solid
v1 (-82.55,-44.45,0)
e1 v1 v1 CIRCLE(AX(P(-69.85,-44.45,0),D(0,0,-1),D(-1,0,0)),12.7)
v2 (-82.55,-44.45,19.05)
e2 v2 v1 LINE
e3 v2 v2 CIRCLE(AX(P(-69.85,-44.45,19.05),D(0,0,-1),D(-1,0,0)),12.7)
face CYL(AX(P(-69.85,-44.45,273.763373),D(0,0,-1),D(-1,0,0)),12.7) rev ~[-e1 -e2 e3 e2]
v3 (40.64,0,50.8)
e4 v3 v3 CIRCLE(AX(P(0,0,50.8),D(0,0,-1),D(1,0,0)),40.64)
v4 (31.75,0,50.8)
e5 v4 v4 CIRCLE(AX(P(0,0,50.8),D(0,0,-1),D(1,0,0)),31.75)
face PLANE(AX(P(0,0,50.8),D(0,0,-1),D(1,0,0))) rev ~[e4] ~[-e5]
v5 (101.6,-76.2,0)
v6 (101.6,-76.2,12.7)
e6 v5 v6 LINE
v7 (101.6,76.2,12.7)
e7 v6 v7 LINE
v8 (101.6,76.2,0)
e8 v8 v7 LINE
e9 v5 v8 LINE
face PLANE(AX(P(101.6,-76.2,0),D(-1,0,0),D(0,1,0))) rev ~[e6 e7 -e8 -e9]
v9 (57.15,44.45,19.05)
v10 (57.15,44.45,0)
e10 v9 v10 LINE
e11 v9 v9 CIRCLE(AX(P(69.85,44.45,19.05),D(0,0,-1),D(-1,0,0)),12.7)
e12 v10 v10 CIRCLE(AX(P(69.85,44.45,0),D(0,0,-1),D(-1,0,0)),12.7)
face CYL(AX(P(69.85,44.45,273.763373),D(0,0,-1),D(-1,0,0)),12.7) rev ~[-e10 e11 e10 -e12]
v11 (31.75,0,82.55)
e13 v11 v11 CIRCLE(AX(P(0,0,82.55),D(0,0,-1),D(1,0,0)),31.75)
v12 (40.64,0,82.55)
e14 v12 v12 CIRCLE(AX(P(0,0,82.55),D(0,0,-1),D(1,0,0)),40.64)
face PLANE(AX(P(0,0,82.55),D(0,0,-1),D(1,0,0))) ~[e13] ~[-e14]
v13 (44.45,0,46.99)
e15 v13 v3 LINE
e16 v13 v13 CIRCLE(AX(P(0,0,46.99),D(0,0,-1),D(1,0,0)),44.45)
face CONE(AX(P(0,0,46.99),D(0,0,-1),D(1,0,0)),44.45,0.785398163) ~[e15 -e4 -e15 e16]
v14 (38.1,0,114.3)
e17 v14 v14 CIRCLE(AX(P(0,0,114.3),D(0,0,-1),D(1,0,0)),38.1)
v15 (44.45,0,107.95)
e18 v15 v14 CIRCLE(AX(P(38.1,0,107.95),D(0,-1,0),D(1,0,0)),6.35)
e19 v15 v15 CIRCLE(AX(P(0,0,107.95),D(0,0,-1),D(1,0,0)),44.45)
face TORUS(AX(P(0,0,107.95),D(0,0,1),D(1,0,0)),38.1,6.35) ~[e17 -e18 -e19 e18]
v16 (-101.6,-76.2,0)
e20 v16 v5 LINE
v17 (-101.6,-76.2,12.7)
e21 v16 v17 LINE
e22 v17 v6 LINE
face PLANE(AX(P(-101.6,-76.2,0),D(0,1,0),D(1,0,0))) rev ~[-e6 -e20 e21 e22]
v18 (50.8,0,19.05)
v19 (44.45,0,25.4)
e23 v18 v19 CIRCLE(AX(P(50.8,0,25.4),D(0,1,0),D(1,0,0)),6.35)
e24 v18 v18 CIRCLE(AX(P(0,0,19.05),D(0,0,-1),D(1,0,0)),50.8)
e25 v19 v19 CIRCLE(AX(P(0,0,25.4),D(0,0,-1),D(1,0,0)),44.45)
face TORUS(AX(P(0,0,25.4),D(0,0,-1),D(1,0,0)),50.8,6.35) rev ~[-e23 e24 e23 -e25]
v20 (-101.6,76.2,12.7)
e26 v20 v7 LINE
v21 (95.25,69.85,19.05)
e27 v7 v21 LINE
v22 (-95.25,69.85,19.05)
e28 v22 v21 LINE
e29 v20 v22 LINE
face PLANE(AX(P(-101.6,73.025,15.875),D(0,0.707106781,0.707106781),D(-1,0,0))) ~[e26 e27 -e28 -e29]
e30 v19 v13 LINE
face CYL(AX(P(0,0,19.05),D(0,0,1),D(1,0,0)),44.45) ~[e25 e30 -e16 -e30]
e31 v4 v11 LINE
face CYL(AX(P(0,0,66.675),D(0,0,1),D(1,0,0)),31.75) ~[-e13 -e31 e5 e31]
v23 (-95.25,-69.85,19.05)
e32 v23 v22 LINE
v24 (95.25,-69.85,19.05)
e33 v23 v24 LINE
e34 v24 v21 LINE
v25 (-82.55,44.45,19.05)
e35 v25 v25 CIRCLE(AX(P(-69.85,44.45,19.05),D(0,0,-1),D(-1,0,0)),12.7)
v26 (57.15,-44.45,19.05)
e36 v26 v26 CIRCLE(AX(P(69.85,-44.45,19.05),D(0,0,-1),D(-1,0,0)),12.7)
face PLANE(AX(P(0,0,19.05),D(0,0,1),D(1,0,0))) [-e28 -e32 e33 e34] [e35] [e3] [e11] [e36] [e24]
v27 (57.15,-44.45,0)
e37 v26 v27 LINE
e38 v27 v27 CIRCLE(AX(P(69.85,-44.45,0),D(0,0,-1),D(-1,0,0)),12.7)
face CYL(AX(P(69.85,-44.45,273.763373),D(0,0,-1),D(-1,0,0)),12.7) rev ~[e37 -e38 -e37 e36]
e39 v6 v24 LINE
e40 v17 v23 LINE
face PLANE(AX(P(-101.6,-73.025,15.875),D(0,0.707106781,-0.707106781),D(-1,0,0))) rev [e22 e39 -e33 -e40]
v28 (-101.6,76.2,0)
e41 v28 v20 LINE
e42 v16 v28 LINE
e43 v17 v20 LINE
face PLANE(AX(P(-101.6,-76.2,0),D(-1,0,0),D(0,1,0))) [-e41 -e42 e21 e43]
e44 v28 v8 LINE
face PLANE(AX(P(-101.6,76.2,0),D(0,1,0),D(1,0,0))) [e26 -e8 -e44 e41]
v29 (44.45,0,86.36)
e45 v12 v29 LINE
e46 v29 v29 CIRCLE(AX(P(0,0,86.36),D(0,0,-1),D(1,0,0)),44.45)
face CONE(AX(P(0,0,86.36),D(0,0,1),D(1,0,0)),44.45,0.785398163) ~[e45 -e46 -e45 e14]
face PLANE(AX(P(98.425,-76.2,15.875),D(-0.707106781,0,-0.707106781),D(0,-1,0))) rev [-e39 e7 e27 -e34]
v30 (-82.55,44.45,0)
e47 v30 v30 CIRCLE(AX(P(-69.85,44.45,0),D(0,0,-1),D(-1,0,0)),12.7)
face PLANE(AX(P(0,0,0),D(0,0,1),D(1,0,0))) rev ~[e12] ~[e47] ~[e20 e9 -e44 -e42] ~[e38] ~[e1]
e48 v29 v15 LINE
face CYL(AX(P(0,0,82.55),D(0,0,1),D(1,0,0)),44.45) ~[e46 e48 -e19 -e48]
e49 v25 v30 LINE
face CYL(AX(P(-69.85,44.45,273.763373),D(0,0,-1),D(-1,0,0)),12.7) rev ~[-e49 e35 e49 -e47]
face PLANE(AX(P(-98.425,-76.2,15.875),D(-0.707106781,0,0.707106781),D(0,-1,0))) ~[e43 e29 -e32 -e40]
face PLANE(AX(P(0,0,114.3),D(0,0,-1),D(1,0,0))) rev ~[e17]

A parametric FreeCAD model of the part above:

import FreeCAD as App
import Part
import Sketcher
from FreeCAD import Vector
Q = App.Units.Quantity


def edges_at(feature, points):
    """Names of the edges that pass closest to the given points."""
    edges = feature.Shape.Edges
    near = lambda p: min(range(len(edges)), key=lambda i: edges[i].distToShape(Part.Vertex(*p))[0])
    return sorted({f"Edge{near(p) + 1}" for p in points})


def add_polygon(sketch, points):
    """Adds a closed chain of lines whose ends are joined by coincident constraints."""
    first, n = sketch.GeometryCount, len(points)
    for a, b in zip(points, points[1:] + points[:1]):
        sketch.addGeometry(Part.LineSegment(App.Vector(*a, 0), App.Vector(*b, 0)), False)
    for i in range(n):
        sketch.addConstraint(Sketcher.Constraint("Coincident", first + i, 2, first + (i + 1) % n, 1))

doc = App.newDocument("Part")
body = doc.addObject("PartDesign::Body", "Body")

# Sketch on XY plane
sketch1 = doc.addObject("Sketcher::SketchObject", "Sketch")
body.addObject(sketch1)
sketch1.AttachmentSupport = (doc.XY_Plane, [""])
sketch1.MapMode = "FlatFace"
add_polygon(sketch1, [(-102, 76), (-102, -76), (102, -76), (102, 76)])  # lines 0-3
sketch1.addConstraint(Sketcher.Constraint("Vertical", 0))
sketch1.addConstraint(Sketcher.Constraint("Horizontal", 1))
sketch1.addConstraint(Sketcher.Constraint("Vertical", 2))
sketch1.addConstraint(Sketcher.Constraint("Horizontal", 3))
sketch1.addConstraint(Sketcher.Constraint("Symmetric", 0, 2, 2, 2, -1, 1))
sketch1.addConstraint(Sketcher.Constraint("DistanceX", 1, 1, 1, 2, Q("8 in")))
sketch1.addConstraint(Sketcher.Constraint("DistanceY", 0, 2, 0, 1, Q("6 in")))
pad1 = doc.addObject("PartDesign::Pad", "Pad")
body.addObject(pad1)
pad1.Profile = sketch1
pad1.Length = Q("0.75 in")
doc.recompute()

chamfer = doc.addObject("PartDesign::Chamfer", "Chamfer")
body.addObject(chamfer)
chamfer.Base = (pad1, edges_at(pad1, [
    (0, -76.2, 19.05),
    (101.6, 0, 19.05),
    (-101.6, 0, 19.05),
    (0, 76.2, 19.05),
]))
chamfer.Size = Q("0.25 in")

# Sketch on XY plane
sketch2 = doc.addObject("Sketcher::SketchObject", "Sketch001")
body.addObject(sketch2)
sketch2.AttachmentSupport = (doc.XY_Plane, [""])
sketch2.MapMode = "FlatFace"
sketch2.AttachmentOffset = App.Placement(Vector(0, 0, 0.75 * 25.4), App.Rotation())
sketch2.addGeometry(Part.Circle(Vector(-70, 44, 0), Vector(0, 0, 1), 13), False)
sketch2.addGeometry(Part.Circle(Vector(70, 44, 0), Vector(0, 0, 1), 13), False)
sketch2.addGeometry(Part.Circle(Vector(70, -44, 0), Vector(0, 0, 1), 13), False)
sketch2.addGeometry(Part.Circle(Vector(-70, -44, 0), Vector(0, 0, 1), 13), False)
sketch2.addConstraint(Sketcher.Constraint("Equal", 0, 1))
sketch2.addConstraint(Sketcher.Constraint("Equal", 1, 2))
sketch2.addConstraint(Sketcher.Constraint("Equal", 2, 3))
sketch2.addConstraint(Sketcher.Constraint("Symmetric", 0, 3, 2, 3, -1, 1))
sketch2.addConstraint(Sketcher.Constraint("Symmetric", 1, 3, 3, 3, -1, 1))
sketch2.addConstraint(Sketcher.Constraint("Symmetric", 0, 3, 1, 3, -2))
sketch2.addConstraint(Sketcher.Constraint("Diameter", 0, Q("1 in")))
sketch2.addConstraint(Sketcher.Constraint("DistanceX", 0, 3, 1, 3, Q("5.5 in")))
sketch2.addConstraint(Sketcher.Constraint("DistanceY", 2, 3, 1, 3, Q("3.5 in")))
doc.recompute()
hole = doc.addObject("PartDesign::Hole", "Hole")
body.addObject(hole)
hole.Profile = sketch2
hole.ThreadType = "None"
hole.Diameter = Q("1 in")
hole.DepthType = "ThroughAll"

# Sketch on XZ plane
sketch3 = doc.addObject("Sketcher::SketchObject", "Sketch002")
body.addObject(sketch3)
sketch3.AttachmentSupport = (doc.XZ_Plane, [""])
sketch3.MapMode = "FlatFace"
add_polygon(sketch3, [(0, 114), (0, 19), (44, 19), (44, 51), (32, 51), (32, 83), (44, 83), (44, 114)])  # lines 0-7
sketch3.addConstraint(Sketcher.Constraint("Vertical", 0))
sketch3.addConstraint(Sketcher.Constraint("Horizontal", 1))
sketch3.addConstraint(Sketcher.Constraint("Vertical", 2))
sketch3.addConstraint(Sketcher.Constraint("Horizontal", 3))
sketch3.addConstraint(Sketcher.Constraint("Vertical", 4))
sketch3.addConstraint(Sketcher.Constraint("Horizontal", 5))
sketch3.addConstraint(Sketcher.Constraint("Vertical", 6))
sketch3.addConstraint(Sketcher.Constraint("Horizontal", 7))
sketch3.addConstraint(Sketcher.Constraint("PointOnObject", 0, 2, -2))
sketch3.addConstraint(Sketcher.Constraint("Vertical", 2, 2, 5, 2))
sketch3.addConstraint(Sketcher.Constraint("Equal", 2, 4))
sketch3.addConstraint(Sketcher.Constraint("Equal", 4, 6))
sketch3.addConstraint(Sketcher.Constraint("DistanceX", 3, 2, 3, 1, Q("0.5 in")))
sketch3.addConstraint(Sketcher.Constraint("DistanceY", -1, 1, 2, 2, Q("2 in")))
sketch3.addConstraint(Sketcher.Constraint("DistanceX", 1, 1, 1, 2, Q("1.75 in")))
sketch3.addConstraint(Sketcher.Constraint("DistanceY", 0, 2, 0, 1, Q("3.75 in")))
revolution = doc.addObject("PartDesign::Revolution", "Revolution")
body.addObject(revolution)
revolution.Profile = sketch3
revolution.ReferenceAxis = (sketch3, ["V_Axis"])
revolution.Angle = 360
doc.recompute()

fillet = doc.addObject("PartDesign::Fillet", "Fillet")
body.addObject(fillet)
fillet.Base = (revolution, edges_at(revolution, [(-44.45, 0, 114.3), (-44.45, 0, 19.05)]))
fillet.Radius = Q("0.25 in")
doc.recompute()

chamfer2 = doc.addObject("PartDesign::Chamfer", "Chamfer001")
body.addObject(chamfer2)
chamfer2.Base = (fillet, edges_at(fillet, [(-44.45, 0, 50.8), (-44.45, 0, 82.55)]))
chamfer2.Size = Q("0.15 in")

doc.recompute()
